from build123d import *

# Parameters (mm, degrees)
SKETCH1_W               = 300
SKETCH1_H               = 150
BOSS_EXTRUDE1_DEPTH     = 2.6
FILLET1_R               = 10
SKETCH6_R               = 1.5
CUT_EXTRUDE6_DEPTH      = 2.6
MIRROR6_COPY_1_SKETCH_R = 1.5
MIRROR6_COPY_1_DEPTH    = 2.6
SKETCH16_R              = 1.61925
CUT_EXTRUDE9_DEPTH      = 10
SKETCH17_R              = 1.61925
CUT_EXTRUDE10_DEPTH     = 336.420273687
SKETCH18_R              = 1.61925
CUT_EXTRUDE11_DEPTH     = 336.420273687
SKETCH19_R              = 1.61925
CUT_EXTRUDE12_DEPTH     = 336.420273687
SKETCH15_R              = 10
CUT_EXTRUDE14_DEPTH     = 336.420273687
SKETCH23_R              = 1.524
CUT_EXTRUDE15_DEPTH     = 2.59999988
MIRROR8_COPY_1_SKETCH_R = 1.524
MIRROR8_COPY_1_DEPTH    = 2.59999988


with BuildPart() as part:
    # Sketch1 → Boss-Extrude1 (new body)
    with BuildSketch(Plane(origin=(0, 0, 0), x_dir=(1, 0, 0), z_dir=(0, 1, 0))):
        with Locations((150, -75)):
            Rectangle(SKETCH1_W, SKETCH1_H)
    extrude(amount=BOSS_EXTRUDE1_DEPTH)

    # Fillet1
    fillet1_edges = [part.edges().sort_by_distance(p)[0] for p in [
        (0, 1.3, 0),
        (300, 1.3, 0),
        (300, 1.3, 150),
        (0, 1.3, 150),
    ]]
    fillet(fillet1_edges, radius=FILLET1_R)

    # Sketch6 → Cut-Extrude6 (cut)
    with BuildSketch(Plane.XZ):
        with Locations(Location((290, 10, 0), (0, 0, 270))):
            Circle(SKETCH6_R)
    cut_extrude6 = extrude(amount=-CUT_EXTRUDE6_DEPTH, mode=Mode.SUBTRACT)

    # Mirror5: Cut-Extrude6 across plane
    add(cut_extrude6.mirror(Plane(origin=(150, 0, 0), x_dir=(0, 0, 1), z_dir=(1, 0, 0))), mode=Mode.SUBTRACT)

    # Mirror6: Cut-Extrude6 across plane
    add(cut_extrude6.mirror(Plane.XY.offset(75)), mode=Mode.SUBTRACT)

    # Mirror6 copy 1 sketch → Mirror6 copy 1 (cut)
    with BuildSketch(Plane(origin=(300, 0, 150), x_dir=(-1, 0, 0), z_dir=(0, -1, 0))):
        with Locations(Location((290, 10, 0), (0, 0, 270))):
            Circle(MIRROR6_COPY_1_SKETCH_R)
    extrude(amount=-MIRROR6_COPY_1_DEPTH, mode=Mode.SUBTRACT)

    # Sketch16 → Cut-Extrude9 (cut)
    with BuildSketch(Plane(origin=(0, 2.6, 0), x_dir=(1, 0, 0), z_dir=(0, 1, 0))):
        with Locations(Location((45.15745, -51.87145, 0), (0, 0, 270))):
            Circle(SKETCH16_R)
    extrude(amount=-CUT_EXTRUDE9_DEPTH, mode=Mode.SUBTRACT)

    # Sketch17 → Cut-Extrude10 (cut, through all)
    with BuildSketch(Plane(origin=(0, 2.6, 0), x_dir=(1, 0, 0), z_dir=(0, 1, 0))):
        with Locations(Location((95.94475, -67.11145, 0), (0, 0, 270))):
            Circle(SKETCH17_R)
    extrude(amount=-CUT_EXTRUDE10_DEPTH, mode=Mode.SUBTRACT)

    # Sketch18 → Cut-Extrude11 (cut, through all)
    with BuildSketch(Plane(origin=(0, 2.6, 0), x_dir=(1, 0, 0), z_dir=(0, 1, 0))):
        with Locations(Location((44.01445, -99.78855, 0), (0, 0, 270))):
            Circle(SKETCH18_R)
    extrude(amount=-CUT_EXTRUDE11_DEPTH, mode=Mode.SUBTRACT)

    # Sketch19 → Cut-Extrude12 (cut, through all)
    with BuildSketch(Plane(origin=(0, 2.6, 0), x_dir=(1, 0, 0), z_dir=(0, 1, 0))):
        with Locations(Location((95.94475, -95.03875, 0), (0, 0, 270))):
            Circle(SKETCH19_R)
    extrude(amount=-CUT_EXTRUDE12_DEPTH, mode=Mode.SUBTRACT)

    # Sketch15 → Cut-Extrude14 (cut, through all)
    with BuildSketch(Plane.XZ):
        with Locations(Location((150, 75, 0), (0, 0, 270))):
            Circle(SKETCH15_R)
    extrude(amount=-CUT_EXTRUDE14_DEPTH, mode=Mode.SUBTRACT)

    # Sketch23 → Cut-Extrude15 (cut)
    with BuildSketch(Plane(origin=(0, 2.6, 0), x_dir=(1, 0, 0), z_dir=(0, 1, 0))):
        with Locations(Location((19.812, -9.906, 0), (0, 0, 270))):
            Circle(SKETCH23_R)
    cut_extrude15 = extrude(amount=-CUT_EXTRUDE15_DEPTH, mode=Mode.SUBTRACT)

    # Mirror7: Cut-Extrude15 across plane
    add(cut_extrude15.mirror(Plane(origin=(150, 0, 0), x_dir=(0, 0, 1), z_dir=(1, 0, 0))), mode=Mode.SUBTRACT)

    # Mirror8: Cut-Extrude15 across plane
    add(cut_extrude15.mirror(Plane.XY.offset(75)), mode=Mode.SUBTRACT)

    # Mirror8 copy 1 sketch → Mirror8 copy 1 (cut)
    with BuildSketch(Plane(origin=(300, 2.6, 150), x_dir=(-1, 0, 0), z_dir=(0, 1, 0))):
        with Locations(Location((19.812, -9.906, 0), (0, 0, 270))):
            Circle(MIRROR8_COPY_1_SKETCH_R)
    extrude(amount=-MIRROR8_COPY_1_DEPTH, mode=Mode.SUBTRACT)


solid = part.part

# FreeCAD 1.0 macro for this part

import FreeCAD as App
import Part
import Sketcher
Q = App.Units.Quantity


def edges_at(feature, points):
    """Names of the edges that pass closest to the given points."""
    edges = feature.Shape.Edges
    near = lambda p: min(range(len(edges)), key=lambda i: edges[i].distToShape(Part.Vertex(*p))[0])
    return sorted({f"Edge{near(p) + 1}" for p in points})


def add_polygon(sketch, points):
    """Adds a closed chain of lines whose ends are joined by coincident constraints."""
    first, n = sketch.GeometryCount, len(points)
    for a, b in zip(points, points[1:] + points[:1]):
        sketch.addGeometry(Part.LineSegment(App.Vector(*a, 0), App.Vector(*b, 0)), False)
    for i in range(n):
        sketch.addConstraint(Sketcher.Constraint("Coincident", first + i, 2, first + (i + 1) % n, 1))

doc = App.newDocument("Part")
body = doc.addObject("PartDesign::Body", "Body")

sketch1 = body.newObject("Sketcher::SketchObject", "Sketch")
sketch1.AttachmentSupport = (doc.getObject("XZ_Plane"), [""])
sketch1.MapMode = "FlatFace"
add_polygon(sketch1, [(0, 0), (0, 150), (300, 150), (300, 0)])
sketch1.addConstraint([
    Sketcher.Constraint("Vertical", 0),
    Sketcher.Constraint("Horizontal", 1),
    Sketcher.Constraint("Vertical", 2),
    Sketcher.Constraint("Horizontal", 3),
    Sketcher.Constraint("Coincident", 3, 2, -1, 1),
    Sketcher.Constraint("DistanceX", 1, 1, 1, 2, Q("300 mm")),
    Sketcher.Constraint("DistanceY", 0, 1, 0, 2, Q("150 mm")),
])
pad1 = body.newObject("PartDesign::Pad", "Pad")
pad1.Profile = sketch1
pad1.Length = 2.6
pad1.Reversed = True
doc.recompute()

fillet = body.newObject("PartDesign::Fillet", "Fillet")
fillet.Base = (pad1, edges_at(pad1, [
    (0, 1.3, 0),
    (300, 1.3, 0),
    (300, 1.3, 150),
    (0, 1.3, 150),
]))
fillet.Radius = 10

sketch2 = body.newObject("Sketcher::SketchObject", "Sketch001")
sketch2.AttachmentSupport = (doc.getObject("XZ_Plane"), [""])
sketch2.MapMode = "FlatFace"
sketch2.addGeometry(Part.Circle(App.Vector(290, 10, 0), App.Vector(0, 0, 1), 1.5), False)
sketch2.addConstraint([
    Sketcher.Constraint("Diameter", 0, Q("3 mm")),
    Sketcher.Constraint("DistanceX", -1, 1, 0, 3, Q("290 mm")),
    Sketcher.Constraint("DistanceY", -1, 1, 0, 3, Q("10 mm")),
])
pocket1 = body.newObject("PartDesign::Pocket", "Pocket")
pocket1.Profile = sketch2
pocket1.Length = 2.6
doc.recompute()

datumplane = body.newObject("PartDesign::Plane", "DatumPlane")
datumplane.AttachmentSupport = (doc.getObject("YZ_Plane"), [""])
datumplane.MapMode = "FlatFace"
datumplane.AttachmentOffset = App.Placement(App.Vector(0, 0, 150), App.Rotation())
mirrored = body.newObject("PartDesign::Mirrored", "Mirrored")
mirrored.Originals = [pocket1]
mirrored.MirrorPlane = (datumplane, [""])
body.Tip = mirrored
doc.recompute()

datumplane2 = body.newObject("PartDesign::Plane", "DatumPlane001")
datumplane2.AttachmentSupport = (doc.getObject("XY_Plane"), [""])
datumplane2.MapMode = "FlatFace"
datumplane2.AttachmentOffset = App.Placement(App.Vector(0, 0, 75), App.Rotation())
mirrored2 = body.newObject("PartDesign::Mirrored", "Mirrored001")
mirrored2.Originals = [pocket1]
mirrored2.MirrorPlane = (datumplane2, [""])
body.Tip = mirrored2

sketch3 = body.newObject("Sketcher::SketchObject", "Sketch002")
sketch3.AttachmentSupport = (doc.getObject("XZ_Plane"), [""])
sketch3.MapMode = "FlatFace"
sketch3.addGeometry(Part.Circle(App.Vector(10, 140, 0), App.Vector(0, 0, 1), 1.5), False)
sketch3.addConstraint([
    Sketcher.Constraint("Diameter", 0, Q("3 mm")),
    Sketcher.Constraint("DistanceX", -1, 1, 0, 3, Q("10 mm")),
    Sketcher.Constraint("DistanceY", -1, 1, 0, 3, Q("140 mm")),
])
pocket2 = body.newObject("PartDesign::Pocket", "Pocket001")
pocket2.Profile = sketch3
pocket2.Length = 2.6

sketch4 = body.newObject("Sketcher::SketchObject", "Sketch003")
sketch4.AttachmentSupport = (doc.getObject("XZ_Plane"), [""])
sketch4.MapMode = "FlatFace"
sketch4.AttachmentOffset = App.Placement(App.Vector(0, 0, -2.6), App.Rotation())
sketch4.addGeometry(Part.Circle(App.Vector(45.2, 51.9, 0), App.Vector(0, 0, 1), 1.6), False)
sketch4.addConstraint([
    Sketcher.Constraint("Diameter", 0, Q("3.2385 mm")),
    Sketcher.Constraint("DistanceX", -1, 1, 0, 3, Q("45.15745 mm")),
    Sketcher.Constraint("DistanceY", -1, 1, 0, 3, Q("51.87145 mm")),
])
pocket3 = body.newObject("PartDesign::Pocket", "Pocket002")
pocket3.Profile = sketch4
pocket3.Length = 10
pocket3.Reversed = True

sketch5 = body.newObject("Sketcher::SketchObject", "Sketch004")
sketch5.AttachmentSupport = (doc.getObject("XZ_Plane"), [""])
sketch5.MapMode = "FlatFace"
sketch5.AttachmentOffset = App.Placement(App.Vector(0, 0, -2.6), App.Rotation())
sketch5.addGeometry(Part.Circle(App.Vector(95.9, 67.1, 0), App.Vector(0, 0, 1), 1.6), False)
sketch5.addConstraint([
    Sketcher.Constraint("Diameter", 0, Q("3.2385 mm")),
    Sketcher.Constraint("DistanceX", -1, 1, 0, 3, Q("95.94475 mm")),
    Sketcher.Constraint("DistanceY", -1, 1, 0, 3, Q("67.11145 mm")),
])
pocket4 = body.newObject("PartDesign::Pocket", "Pocket003")
pocket4.Profile = sketch5
pocket4.Type = "ThroughAll"
pocket4.Reversed = True

sketch6 = body.newObject("Sketcher::SketchObject", "Sketch005")
sketch6.AttachmentSupport = (doc.getObject("XZ_Plane"), [""])
sketch6.MapMode = "FlatFace"
sketch6.AttachmentOffset = App.Placement(App.Vector(0, 0, -2.6), App.Rotation())
sketch6.addGeometry(Part.Circle(App.Vector(44, 99.8, 0), App.Vector(0, 0, 1), 1.6), False)
sketch6.addConstraint([
    Sketcher.Constraint("Diameter", 0, Q("3.2385 mm")),
    Sketcher.Constraint("DistanceX", -1, 1, 0, 3, Q("44.01445 mm")),
    Sketcher.Constraint("DistanceY", -1, 1, 0, 3, Q("99.78855 mm")),
])
pocket5 = body.newObject("PartDesign::Pocket", "Pocket004")
pocket5.Profile = sketch6
pocket5.Type = "ThroughAll"
pocket5.Reversed = True

sketch7 = body.newObject("Sketcher::SketchObject", "Sketch006")
sketch7.AttachmentSupport = (doc.getObject("XZ_Plane"), [""])
sketch7.MapMode = "FlatFace"
sketch7.AttachmentOffset = App.Placement(App.Vector(0, 0, -2.6), App.Rotation())
sketch7.addGeometry(Part.Circle(App.Vector(95.9, 95, 0), App.Vector(0, 0, 1), 1.6), False)
sketch7.addConstraint([
    Sketcher.Constraint("Diameter", 0, Q("3.2385 mm")),
    Sketcher.Constraint("DistanceX", -1, 1, 0, 3, Q("95.94475 mm")),
    Sketcher.Constraint("DistanceY", -1, 1, 0, 3, Q("95.03875 mm")),
])
pocket6 = body.newObject("PartDesign::Pocket", "Pocket005")
pocket6.Profile = sketch7
pocket6.Type = "ThroughAll"
pocket6.Reversed = True

sketch8 = body.newObject("Sketcher::SketchObject", "Sketch007")
sketch8.AttachmentSupport = (doc.getObject("XZ_Plane"), [""])
sketch8.MapMode = "FlatFace"
sketch8.addGeometry(Part.Circle(App.Vector(150, 75, 0), App.Vector(0, 0, 1), 10), False)
sketch8.addConstraint([
    Sketcher.Constraint("Diameter", 0, Q("20 mm")),
    Sketcher.Constraint("DistanceX", -1, 1, 0, 3, Q("150 mm")),
    Sketcher.Constraint("DistanceY", -1, 1, 0, 3, Q("75 mm")),
])
pocket7 = body.newObject("PartDesign::Pocket", "Pocket006")
pocket7.Profile = sketch8
pocket7.Type = "ThroughAll"

sketch9 = body.newObject("Sketcher::SketchObject", "Sketch008")
sketch9.AttachmentSupport = (doc.getObject("XZ_Plane"), [""])
sketch9.MapMode = "FlatFace"
sketch9.AttachmentOffset = App.Placement(App.Vector(0, 0, -2.6), App.Rotation())
sketch9.addGeometry(Part.Circle(App.Vector(19.8, 9.9, 0), App.Vector(0, 0, 1), 1.5), False)
sketch9.addConstraint([
    Sketcher.Constraint("Diameter", 0, Q("3.048 mm")),
    Sketcher.Constraint("DistanceX", -1, 1, 0, 3, Q("19.812 mm")),
    Sketcher.Constraint("DistanceY", -1, 1, 0, 3, Q("9.906 mm")),
])
pocket8 = body.newObject("PartDesign::Pocket", "Pocket007")
pocket8.Profile = sketch9
pocket8.Length = 2.6
pocket8.Reversed = True
doc.recompute()

datumplane3 = body.newObject("PartDesign::Plane", "DatumPlane002")
datumplane3.AttachmentSupport = (doc.getObject("YZ_Plane"), [""])
datumplane3.MapMode = "FlatFace"
datumplane3.AttachmentOffset = App.Placement(App.Vector(0, 0, 150), App.Rotation())
mirrored3 = body.newObject("PartDesign::Mirrored", "Mirrored002")
mirrored3.Originals = [pocket8]
mirrored3.MirrorPlane = (datumplane3, [""])
body.Tip = mirrored3
doc.recompute()

datumplane4 = body.newObject("PartDesign::Plane", "DatumPlane003")
datumplane4.AttachmentSupport = (doc.getObject("XY_Plane"), [""])
datumplane4.MapMode = "FlatFace"
datumplane4.AttachmentOffset = App.Placement(App.Vector(0, 0, 75), App.Rotation())
mirrored4 = body.newObject("PartDesign::Mirrored", "Mirrored003")
mirrored4.Originals = [pocket8]
mirrored4.MirrorPlane = (datumplane4, [""])
body.Tip = mirrored4

sketch10 = body.newObject("Sketcher::SketchObject", "Sketch009")
sketch10.AttachmentSupport = (doc.getObject("XZ_Plane"), [""])
sketch10.MapMode = "FlatFace"
sketch10.AttachmentOffset = App.Placement(App.Vector(0, 0, -2.6), App.Rotation())
sketch10.addGeometry(Part.Circle(App.Vector(280.2, 140.1, 0), App.Vector(0, 0, 1), 1.5), False)
sketch10.addConstraint([
    Sketcher.Constraint("Diameter", 0, Q("3.048 mm")),
    Sketcher.Constraint("DistanceX", -1, 1, 0, 3, Q("280.188 mm")),
    Sketcher.Constraint("DistanceY", -1, 1, 0, 3, Q("140.094 mm")),
])
pocket9 = body.newObject("PartDesign::Pocket", "Pocket008")
pocket9.Profile = sketch10
pocket9.Length = 2.6
pocket9.Reversed = True

doc.recompute()
